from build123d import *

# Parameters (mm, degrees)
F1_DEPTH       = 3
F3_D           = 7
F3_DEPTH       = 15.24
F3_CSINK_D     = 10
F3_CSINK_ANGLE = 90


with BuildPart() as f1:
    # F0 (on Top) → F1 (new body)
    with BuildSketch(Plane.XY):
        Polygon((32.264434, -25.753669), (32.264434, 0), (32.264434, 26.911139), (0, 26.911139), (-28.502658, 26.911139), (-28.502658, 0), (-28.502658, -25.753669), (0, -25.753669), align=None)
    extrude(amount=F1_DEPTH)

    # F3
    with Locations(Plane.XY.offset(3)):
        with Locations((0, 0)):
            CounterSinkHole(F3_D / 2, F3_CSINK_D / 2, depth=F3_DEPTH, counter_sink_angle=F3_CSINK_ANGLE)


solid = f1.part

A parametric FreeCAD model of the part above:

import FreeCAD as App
import Part
import Sketcher

V = App.Vector


def add_polygon(sketch, points):
    """Adds a closed chain of lines whose ends are joined by coincident constraints."""
    first, n = sketch.GeometryCount, len(points)
    for a, b in zip(points, points[1:] + points[:1]):
        sketch.addGeometry(Part.LineSegment(App.Vector(*a, 0), App.Vector(*b, 0)), False)
    for i in range(n):
        sketch.addConstraint(Sketcher.Constraint("Coincident", first + i, 2, first + (i + 1) % n, 1))

doc = App.newDocument("Part")
body = doc.addObject("PartDesign::Body", "Body")

# Sketch on XY plane
sketch1 = doc.addObject("Sketcher::SketchObject", "Sketch")
body.addObject(sketch1)
sketch1.AttachmentSupport = (doc.XY_Plane, [""])
sketch1.MapMode = "FlatFace"
add_polygon(sketch1, [(32, -26), (32, 27), (-29, 27), (-29, -26)])  # lines 0-3
sketch1.addConstraint([
    Sketcher.Constraint("Vertical", 0),
    Sketcher.Constraint("Horizontal", 1),
    Sketcher.Constraint("Vertical", 2),
    Sketcher.Constraint("Horizontal", 3),
    Sketcher.Constraint("DistanceX", 1, 2, 1, 1, 60.767092),
    Sketcher.Constraint("DistanceY", 0, 1, 0, 2, 52.664808),
    Sketcher.Constraint("DistanceY", -1, 1, 0, 2, 26.911139),
    Sketcher.Constraint("DistanceX", 1, 2, -1, 1, 28.502658),
])
pad1 = doc.addObject("PartDesign::Pad", "Pad")
body.addObject(pad1)
pad1.Profile = sketch1
pad1.Length = 3

# Sketch on XY plane
sketch2 = doc.addObject("Sketcher::SketchObject", "Sketch001")
body.addObject(sketch2)
sketch2.AttachmentSupport = (doc.XY_Plane, [""])
sketch2.MapMode = "FlatFace"
sketch2.AttachmentOffset = App.Placement(V(0, 0, 3), App.Rotation())
sketch2.addGeometry(Part.Circle(V(0, 0, 0), V(0, 0, 1), 3.5), False)
sketch2.addConstraint([
    Sketcher.Constraint("Coincident", 0, 3, -1, 1),
    Sketcher.Constraint("Diameter", 0, 7.0),
])
doc.recompute()
hole = doc.addObject("PartDesign::Hole", "Hole")
body.addObject(hole)
hole.Profile = sketch2
hole.ThreadType = "None"
hole.Diameter = 7
hole.DepthType = "Dimension"
hole.Depth = 15.24
hole.DrillPoint = "Flat"
hole.HoleCutType = "Countersink"
hole.HoleCutDiameter = 10
hole.HoleCutCountersinkAngle = 90

doc.recompute()
